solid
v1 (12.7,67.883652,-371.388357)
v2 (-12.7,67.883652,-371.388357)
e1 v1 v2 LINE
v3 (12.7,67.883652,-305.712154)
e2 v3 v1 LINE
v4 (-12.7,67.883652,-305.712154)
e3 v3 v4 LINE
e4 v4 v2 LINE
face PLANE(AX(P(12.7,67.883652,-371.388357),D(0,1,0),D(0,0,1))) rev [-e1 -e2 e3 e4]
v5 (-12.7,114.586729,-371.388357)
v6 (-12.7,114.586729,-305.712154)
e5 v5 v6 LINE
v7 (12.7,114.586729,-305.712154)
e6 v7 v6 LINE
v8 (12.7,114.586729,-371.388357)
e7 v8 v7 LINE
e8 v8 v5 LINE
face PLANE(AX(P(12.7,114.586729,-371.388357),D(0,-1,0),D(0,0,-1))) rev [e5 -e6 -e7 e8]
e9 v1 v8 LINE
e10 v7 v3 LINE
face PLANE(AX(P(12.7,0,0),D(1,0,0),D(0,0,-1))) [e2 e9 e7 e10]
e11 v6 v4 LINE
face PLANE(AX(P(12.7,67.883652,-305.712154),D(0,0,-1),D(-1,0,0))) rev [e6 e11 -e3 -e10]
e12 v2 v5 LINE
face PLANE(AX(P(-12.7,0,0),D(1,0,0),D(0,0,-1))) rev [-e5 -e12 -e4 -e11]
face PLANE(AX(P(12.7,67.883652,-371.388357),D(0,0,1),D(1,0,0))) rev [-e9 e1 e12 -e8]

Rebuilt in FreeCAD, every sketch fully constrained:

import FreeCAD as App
import Part
import Sketcher
from FreeCAD import Vector
Q = App.Units.Quantity

doc = App.newDocument("Part")
params = doc.addObject("Spreadsheet::Sheet", "Params")
for row, (alias, value) in enumerate([
    ("pad1_length", "1 in"),
], start=1):
    params.set(f"A{row}", alias)
    params.set(f"B{row}", "=" + value)
    params.setAlias(f"B{row}", alias)

body = doc.addObject("PartDesign::Body", "Body")

sketch1 = body.newObject("Sketcher::SketchObject", "Sketch")
sketch1.AttachmentSupport = (doc.getObject("YZ_Plane"), [""])
sketch1.MapMode = "FlatFace"
sketch1.addGeometry([
    Part.LineSegment(Vector(115, -306, 0), Vector(68, -306, 0)),
    Part.LineSegment(Vector(68, -306, 0), Vector(68, -371, 0)),
    Part.LineSegment(Vector(68, -371, 0), Vector(115, -371, 0)),
    Part.LineSegment(Vector(115, -371, 0), Vector(115, -306, 0)),
], False)
sketch1.addConstraint([
    Sketcher.Constraint("Coincident", 0, 2, 1, 1),
    Sketcher.Constraint("Coincident", 1, 2, 2, 1),
    Sketcher.Constraint("Coincident", 2, 2, 3, 1),
    Sketcher.Constraint("Coincident", 3, 2, 0, 1),
    Sketcher.Constraint("Horizontal", 0),
    Sketcher.Constraint("Vertical", 1),
    Sketcher.Constraint("Horizontal", 2),
    Sketcher.Constraint("Vertical", 3),
    Sketcher.Constraint("DistanceX", 0, 2, 0, 1, Q("46.703077 mm")),
    Sketcher.Constraint("DistanceY", 1, 2, 1, 1, Q("65.676203 mm")),
    Sketcher.Constraint("DistanceX", -1, 1, 0, 2, Q("67.883652 mm")),
    Sketcher.Constraint("DistanceY", 0, 2, -1, 1, Q("305.712154 mm")),
])
pad1 = body.newObject("PartDesign::Pad", "Pad")
pad1.Profile = sketch1
pad1.setExpression("Length", "Params.pad1_length")
pad1.Midplane = True

doc.recompute()
